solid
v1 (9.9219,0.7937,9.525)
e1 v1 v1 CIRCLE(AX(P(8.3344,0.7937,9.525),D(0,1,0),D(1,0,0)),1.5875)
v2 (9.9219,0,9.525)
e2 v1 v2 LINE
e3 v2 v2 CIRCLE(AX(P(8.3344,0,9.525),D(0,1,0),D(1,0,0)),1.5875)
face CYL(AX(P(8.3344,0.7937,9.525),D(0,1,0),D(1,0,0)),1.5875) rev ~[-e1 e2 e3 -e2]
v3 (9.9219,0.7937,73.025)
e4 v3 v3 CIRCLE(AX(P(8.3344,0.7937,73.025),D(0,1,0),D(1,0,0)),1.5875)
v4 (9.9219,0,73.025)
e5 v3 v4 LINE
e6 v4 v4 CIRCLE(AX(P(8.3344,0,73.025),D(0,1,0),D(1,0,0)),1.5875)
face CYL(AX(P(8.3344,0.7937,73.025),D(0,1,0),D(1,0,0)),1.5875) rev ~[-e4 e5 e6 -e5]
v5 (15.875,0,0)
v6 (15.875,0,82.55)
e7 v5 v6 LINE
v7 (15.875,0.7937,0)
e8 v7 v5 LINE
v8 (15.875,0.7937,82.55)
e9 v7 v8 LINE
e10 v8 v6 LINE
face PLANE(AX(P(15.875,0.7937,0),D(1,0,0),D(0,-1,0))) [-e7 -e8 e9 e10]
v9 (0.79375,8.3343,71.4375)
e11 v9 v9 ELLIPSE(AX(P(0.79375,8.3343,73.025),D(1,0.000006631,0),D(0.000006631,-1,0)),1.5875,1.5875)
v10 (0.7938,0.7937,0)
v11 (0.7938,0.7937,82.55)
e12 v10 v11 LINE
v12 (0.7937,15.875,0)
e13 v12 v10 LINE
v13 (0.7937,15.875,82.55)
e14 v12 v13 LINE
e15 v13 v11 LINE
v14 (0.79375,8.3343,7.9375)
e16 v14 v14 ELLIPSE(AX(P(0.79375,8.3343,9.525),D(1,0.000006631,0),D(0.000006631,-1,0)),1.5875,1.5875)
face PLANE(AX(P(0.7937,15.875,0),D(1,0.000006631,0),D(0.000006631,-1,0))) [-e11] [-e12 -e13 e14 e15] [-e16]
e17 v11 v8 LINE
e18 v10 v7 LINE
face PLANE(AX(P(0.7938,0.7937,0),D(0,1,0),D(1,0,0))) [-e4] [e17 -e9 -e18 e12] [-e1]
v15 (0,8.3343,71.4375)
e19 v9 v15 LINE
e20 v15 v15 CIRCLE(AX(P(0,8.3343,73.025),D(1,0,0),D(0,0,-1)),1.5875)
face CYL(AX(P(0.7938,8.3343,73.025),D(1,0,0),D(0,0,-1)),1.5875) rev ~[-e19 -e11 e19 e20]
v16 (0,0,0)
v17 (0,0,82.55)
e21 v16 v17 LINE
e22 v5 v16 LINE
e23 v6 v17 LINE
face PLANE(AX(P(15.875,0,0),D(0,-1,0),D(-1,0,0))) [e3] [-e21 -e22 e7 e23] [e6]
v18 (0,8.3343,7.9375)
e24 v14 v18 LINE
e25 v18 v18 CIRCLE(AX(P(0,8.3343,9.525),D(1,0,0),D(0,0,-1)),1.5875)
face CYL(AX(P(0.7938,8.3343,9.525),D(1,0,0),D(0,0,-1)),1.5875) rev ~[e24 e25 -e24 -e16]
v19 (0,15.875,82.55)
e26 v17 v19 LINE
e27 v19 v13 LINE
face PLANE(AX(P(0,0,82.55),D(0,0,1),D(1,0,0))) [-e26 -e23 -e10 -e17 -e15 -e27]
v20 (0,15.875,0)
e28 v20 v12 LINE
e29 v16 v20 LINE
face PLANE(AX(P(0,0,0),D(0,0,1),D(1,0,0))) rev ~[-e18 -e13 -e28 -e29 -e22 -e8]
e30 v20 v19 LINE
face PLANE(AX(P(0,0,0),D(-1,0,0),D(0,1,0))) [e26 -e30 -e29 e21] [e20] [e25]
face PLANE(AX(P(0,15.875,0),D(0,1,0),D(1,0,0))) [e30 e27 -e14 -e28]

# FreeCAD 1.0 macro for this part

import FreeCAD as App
import Part
import Sketcher
from FreeCAD import Vector
Q = App.Units.Quantity


def add_polygon(sketch, points):
    """Adds a closed chain of lines whose ends are joined by coincident constraints."""
    first, n = sketch.GeometryCount, len(points)
    for a, b in zip(points, points[1:] + points[:1]):
        sketch.addGeometry(Part.LineSegment(App.Vector(*a, 0), App.Vector(*b, 0)), False)
    for i in range(n):
        sketch.addConstraint(Sketcher.Constraint("Coincident", first + i, 2, first + (i + 1) % n, 1))

doc = App.newDocument("Part")
body = doc.addObject("PartDesign::Body", "Body")

# Sketch on XY plane
sketch1 = body.newObject("Sketcher::SketchObject", "Sketch")
sketch1.AttachmentSupport = (doc.getObject("XY_Plane"), [""])
sketch1.MapMode = "FlatFace"
add_polygon(sketch1, [(0, 15.9), (0, 0), (15.9, 0), (15.9, 0.8), (0.8, 0.8), (0.8, 15.9)])  # lines 0-5
sketch1.addConstraint([
    Sketcher.Constraint("Vertical", 0),
    Sketcher.Constraint("Horizontal", 1),
    Sketcher.Constraint("Vertical", 2),
    Sketcher.Constraint("Horizontal", 3),
    Sketcher.Constraint("Vertical", 4),
    Sketcher.Constraint("Horizontal", 5),
    Sketcher.Constraint("Coincident", 0, 2, -1, 1),
    Sketcher.Constraint("Equal", 1, 0),
    Sketcher.Constraint("Equal", 5, 2),
    Sketcher.Constraint("DistanceX", 1, 1, 1, 2, Q("0.625 in")),
    Sketcher.Constraint("DistanceX", 5, 2, 5, 1, Q("0.031248 in")),
])
pad1 = body.newObject("PartDesign::Pad", "Pad")
pad1.Profile = sketch1
pad1.Length = Q("3.25 in")

# Sketch on XZ plane
sketch2 = body.newObject("Sketcher::SketchObject", "Sketch001")
sketch2.AttachmentSupport = (doc.getObject("XZ_Plane"), [""])
sketch2.MapMode = "FlatFace"
sketch2.AttachmentOffset = App.Placement(Vector(0, 0, -0.031248 * 25.4), App.Rotation())
sketch2.addGeometry([
    Part.Circle(Vector(8.3, 9.5, 0), Vector(0, 0, 1), 1.6),
    Part.Circle(Vector(8.3, 73, 0), Vector(0, 0, 1), 1.6),
], False)
sketch2.addConstraint([
    Sketcher.Constraint("Equal", 0, 1),
    Sketcher.Constraint("Vertical", 0, 3, 1, 3),
    Sketcher.Constraint("Diameter", 0, Q("0.125 in")),
    Sketcher.Constraint("DistanceY", 0, 3, 1, 3, Q("2.5 in")),
    Sketcher.Constraint("DistanceY", -1, 1, 0, 3, Q("0.375 in")),
    Sketcher.Constraint("DistanceX", -1, 1, 0, 3, Q("0.328126 in")),
])
pocket1 = body.newObject("PartDesign::Pocket", "Pocket")
pocket1.Profile = sketch2
pocket1.Type = "ThroughAll"
pocket1.Reversed = True

# Sketch on YZ plane
sketch3 = body.newObject("Sketcher::SketchObject", "Sketch002")
sketch3.AttachmentSupport = (doc.getObject("YZ_Plane"), [""])
sketch3.MapMode = "FlatFace"
sketch3.AttachmentOffset = App.Placement(Vector(0, 0, 0.031252 * 25.4), App.Rotation())
sketch3.addGeometry([
    Part.Circle(Vector(8.3, 9.5, 0), Vector(0, 0, 1), 1.6),
    Part.Circle(Vector(8.3, 73, 0), Vector(0, 0, 1), 1.6),
], False)
sketch3.addConstraint([
    Sketcher.Constraint("Equal", 0, 1),
    Sketcher.Constraint("Vertical", 0, 3, 1, 3),
    Sketcher.Constraint("Diameter", 0, Q("0.125 in")),
    Sketcher.Constraint("DistanceY", 0, 3, 1, 3, Q("2.5 in")),
    Sketcher.Constraint("DistanceY", -1, 1, 0, 3, Q("0.375 in")),
    Sketcher.Constraint("DistanceX", -1, 1, 0, 3, Q("0.328122 in")),
])
pocket2 = body.newObject("PartDesign::Pocket", "Pocket001")
pocket2.Profile = sketch3
pocket2.Type = "ThroughAll"

doc.recompute()
